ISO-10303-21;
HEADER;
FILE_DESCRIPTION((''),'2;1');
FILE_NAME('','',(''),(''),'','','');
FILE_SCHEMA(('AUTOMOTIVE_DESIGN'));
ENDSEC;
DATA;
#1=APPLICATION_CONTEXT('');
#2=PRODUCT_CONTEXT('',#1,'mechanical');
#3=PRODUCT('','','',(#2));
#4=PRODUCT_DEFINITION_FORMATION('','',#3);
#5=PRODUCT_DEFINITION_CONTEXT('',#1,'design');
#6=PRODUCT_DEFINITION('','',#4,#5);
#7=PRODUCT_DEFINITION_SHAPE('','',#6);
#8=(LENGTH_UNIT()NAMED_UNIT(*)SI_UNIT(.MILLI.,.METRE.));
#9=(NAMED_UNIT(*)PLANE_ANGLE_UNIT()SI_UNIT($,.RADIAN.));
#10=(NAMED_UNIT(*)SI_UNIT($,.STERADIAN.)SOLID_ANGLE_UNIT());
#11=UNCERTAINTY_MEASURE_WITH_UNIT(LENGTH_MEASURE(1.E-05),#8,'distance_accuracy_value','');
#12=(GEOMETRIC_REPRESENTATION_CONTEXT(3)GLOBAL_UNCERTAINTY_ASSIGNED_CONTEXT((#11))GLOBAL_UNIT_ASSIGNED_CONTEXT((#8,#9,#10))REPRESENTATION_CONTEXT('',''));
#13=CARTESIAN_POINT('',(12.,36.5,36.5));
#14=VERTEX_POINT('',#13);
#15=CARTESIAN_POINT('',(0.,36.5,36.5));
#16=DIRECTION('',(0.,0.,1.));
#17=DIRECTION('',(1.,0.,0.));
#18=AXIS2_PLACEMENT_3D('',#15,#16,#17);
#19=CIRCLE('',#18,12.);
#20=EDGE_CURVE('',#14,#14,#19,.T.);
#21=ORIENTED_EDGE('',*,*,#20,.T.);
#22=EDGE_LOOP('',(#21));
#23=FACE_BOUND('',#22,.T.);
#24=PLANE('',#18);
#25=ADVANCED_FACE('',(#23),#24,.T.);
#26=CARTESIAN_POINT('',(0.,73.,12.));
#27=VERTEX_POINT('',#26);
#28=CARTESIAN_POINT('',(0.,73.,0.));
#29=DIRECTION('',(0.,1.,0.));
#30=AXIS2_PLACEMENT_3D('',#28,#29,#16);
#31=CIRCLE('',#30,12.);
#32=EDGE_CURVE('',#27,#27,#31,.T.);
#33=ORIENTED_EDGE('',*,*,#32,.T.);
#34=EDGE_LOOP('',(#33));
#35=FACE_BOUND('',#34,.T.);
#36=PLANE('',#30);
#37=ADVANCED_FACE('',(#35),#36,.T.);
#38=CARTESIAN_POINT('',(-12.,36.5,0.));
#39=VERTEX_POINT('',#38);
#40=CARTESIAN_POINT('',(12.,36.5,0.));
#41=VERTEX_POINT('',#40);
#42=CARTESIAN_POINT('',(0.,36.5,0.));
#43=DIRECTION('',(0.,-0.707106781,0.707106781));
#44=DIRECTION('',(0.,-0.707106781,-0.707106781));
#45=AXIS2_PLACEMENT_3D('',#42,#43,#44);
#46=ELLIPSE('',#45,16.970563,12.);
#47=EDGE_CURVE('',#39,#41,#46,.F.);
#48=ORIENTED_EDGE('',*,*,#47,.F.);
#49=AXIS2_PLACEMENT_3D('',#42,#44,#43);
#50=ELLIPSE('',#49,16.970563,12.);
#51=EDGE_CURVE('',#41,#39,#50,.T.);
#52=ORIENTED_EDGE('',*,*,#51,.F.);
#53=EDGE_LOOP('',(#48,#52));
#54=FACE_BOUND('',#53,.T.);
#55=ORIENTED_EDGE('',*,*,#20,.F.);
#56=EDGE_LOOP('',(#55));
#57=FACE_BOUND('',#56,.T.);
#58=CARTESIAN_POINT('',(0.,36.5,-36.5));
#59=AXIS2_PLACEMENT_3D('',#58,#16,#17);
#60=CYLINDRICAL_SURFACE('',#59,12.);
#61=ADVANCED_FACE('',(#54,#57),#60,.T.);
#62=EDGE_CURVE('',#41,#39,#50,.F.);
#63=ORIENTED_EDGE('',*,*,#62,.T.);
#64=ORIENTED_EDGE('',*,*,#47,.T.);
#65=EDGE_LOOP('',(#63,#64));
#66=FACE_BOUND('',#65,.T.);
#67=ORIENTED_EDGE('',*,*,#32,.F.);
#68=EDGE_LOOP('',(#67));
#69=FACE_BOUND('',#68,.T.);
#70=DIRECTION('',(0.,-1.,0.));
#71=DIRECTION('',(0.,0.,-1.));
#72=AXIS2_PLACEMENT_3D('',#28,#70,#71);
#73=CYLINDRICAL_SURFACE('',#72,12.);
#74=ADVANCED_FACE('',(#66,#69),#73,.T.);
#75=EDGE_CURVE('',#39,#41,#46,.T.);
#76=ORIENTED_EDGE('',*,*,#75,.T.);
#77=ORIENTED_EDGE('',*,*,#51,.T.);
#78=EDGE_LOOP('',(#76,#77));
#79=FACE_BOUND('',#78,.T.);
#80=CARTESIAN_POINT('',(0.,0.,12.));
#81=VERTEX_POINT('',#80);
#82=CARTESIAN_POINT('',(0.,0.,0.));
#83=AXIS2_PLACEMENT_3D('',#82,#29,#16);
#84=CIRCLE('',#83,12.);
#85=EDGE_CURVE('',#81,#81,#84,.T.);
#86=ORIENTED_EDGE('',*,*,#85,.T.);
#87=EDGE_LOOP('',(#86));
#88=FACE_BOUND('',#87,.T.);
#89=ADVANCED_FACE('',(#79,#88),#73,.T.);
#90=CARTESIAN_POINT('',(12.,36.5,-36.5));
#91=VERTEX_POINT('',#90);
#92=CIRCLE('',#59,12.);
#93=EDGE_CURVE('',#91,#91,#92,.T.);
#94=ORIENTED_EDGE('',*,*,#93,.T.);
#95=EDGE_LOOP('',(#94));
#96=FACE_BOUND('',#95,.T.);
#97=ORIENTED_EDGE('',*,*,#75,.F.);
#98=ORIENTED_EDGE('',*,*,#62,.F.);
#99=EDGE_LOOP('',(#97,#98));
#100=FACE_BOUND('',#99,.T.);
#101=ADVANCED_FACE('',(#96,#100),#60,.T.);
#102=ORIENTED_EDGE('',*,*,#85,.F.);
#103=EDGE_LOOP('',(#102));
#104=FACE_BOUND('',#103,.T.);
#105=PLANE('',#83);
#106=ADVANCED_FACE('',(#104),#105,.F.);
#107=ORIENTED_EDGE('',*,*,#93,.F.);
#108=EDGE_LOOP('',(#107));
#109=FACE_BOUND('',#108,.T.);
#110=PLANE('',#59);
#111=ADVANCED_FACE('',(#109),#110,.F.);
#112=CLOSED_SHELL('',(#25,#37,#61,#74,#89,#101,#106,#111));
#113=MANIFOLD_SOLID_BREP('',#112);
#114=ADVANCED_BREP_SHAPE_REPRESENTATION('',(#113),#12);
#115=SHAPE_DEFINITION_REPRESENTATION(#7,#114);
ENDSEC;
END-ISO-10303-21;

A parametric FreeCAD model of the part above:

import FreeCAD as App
import Part
import Sketcher
from FreeCAD import Vector
Q = App.Units.Quantity

doc = App.newDocument("Part")
body = doc.addObject("PartDesign::Body", "Body")

sketch1 = body.newObject("Sketcher::SketchObject", "Sketch")
sketch1.AttachmentSupport = (doc.getObject("XZ_Plane"), [""])
sketch1.MapMode = "FlatFace"
sketch1.addGeometry(Part.Circle(Vector(0, 0, 0), Vector(0, 0, 1), 12), False)
sketch1.addConstraint([
    Sketcher.Constraint("Coincident", 0, 3, -1, 1),
    Sketcher.Constraint("Diameter", 0, Q("24 mm")),
])
pad1 = body.newObject("PartDesign::Pad", "Pad")
pad1.Profile = sketch1
pad1.Length = 73
pad1.Reversed = True

sketch2 = body.newObject("Sketcher::SketchObject", "Sketch001")
sketch2.AttachmentSupport = (doc.getObject("XY_Plane"), [""])
sketch2.MapMode = "FlatFace"
sketch2.addGeometry(Part.Circle(Vector(0, 36, 0), Vector(0, 0, 1), 12), False)
sketch2.addConstraint([
    Sketcher.Constraint("PointOnObject", 0, 3, -2),
    Sketcher.Constraint("Diameter", 0, Q("24 mm")),
    Sketcher.Constraint("DistanceY", -1, 1, 0, 3, Q("36.5 mm")),
])
pad2 = body.newObject("PartDesign::Pad", "Pad001")
pad2.Profile = sketch2
pad2.Type = "TwoLengths"
pad2.Length = 36.5
pad2.Length2 = 36.5

doc.recompute()
